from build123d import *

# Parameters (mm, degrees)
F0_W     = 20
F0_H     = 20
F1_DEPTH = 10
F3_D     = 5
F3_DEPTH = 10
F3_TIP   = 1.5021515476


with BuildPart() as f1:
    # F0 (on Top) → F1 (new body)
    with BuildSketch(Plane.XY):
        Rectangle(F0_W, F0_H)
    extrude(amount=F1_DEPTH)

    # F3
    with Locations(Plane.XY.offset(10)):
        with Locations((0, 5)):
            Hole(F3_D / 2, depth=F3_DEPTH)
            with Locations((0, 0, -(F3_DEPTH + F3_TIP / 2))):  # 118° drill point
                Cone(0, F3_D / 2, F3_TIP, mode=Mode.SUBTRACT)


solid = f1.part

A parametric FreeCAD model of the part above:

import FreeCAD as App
import Part
import Sketcher
Q = App.Units.Quantity


def add_polygon(sketch, points):
    """Adds a closed chain of lines whose ends are joined by coincident constraints."""
    first, n = sketch.GeometryCount, len(points)
    for a, b in zip(points, points[1:] + points[:1]):
        sketch.addGeometry(Part.LineSegment(App.Vector(*a, 0), App.Vector(*b, 0)), False)
    for i in range(n):
        sketch.addConstraint(Sketcher.Constraint("Coincident", first + i, 2, first + (i + 1) % n, 1))

doc = App.newDocument("Part")
params = doc.addObject("Spreadsheet::Sheet", "Params")
for row, (alias, value) in enumerate([
    ("sketch1_width", "20 mm"),
    ("pad1_length", "10 mm"),
    ("sketch2_diameter", "5 mm"),
    ("hole_diameter", "5 mm"),
    ("hole_depth", "10 mm"),
], start=1):
    params.set(f"A{row}", alias)
    params.set(f"B{row}", "=" + value)
    params.setAlias(f"B{row}", alias)

body = doc.addObject("PartDesign::Body", "Body")

# Sketch on XY plane
sketch1 = body.newObject("Sketcher::SketchObject", "Sketch")
sketch1.AttachmentSupport = (doc.getObject("XY_Plane"), [""])
sketch1.MapMode = "FlatFace"
add_polygon(sketch1, [(-10, 10), (-10, -10), (10, -10), (10, 10)])  # lines 0-3
sketch1.addConstraint([
    Sketcher.Constraint("Vertical", 0),
    Sketcher.Constraint("Horizontal", 1),
    Sketcher.Constraint("Vertical", 2),
    Sketcher.Constraint("Horizontal", 3),
    Sketcher.Constraint("Symmetric", 0, 2, 2, 2, -1, 1),
    Sketcher.Constraint("Equal", 3, 0),
    Sketcher.Constraint("DistanceX", 1, 1, 1, 2, Q("20 mm")),
])
sketch1.setExpression("Constraints[10]", "Params.sketch1_width")
pad1 = body.newObject("PartDesign::Pad", "Pad")
pad1.Profile = sketch1
pad1.setExpression("Length", "Params.pad1_length")

# Sketch on XY plane
sketch2 = body.newObject("Sketcher::SketchObject", "Sketch001")
sketch2.AttachmentSupport = (doc.getObject("XY_Plane"), [""])
sketch2.MapMode = "FlatFace"
sketch2.AttachmentOffset = App.Placement(App.Vector(0, 0, 10), App.Rotation())
sketch2.addGeometry(Part.Circle(App.Vector(0, 5, 0), App.Vector(0, 0, 1), 2.5), False)
sketch2.addConstraint([
    Sketcher.Constraint("PointOnObject", 0, 3, -2),
    Sketcher.Constraint("Diameter", 0, Q("5 mm")),
    Sketcher.Constraint("DistanceY", -1, 1, 0, 3, Q("5 mm")),
])
sketch2.setExpression("Constraints[1]", "Params.sketch2_diameter")
doc.recompute()
hole = body.newObject("PartDesign::Hole", "Hole")
hole.Profile = sketch2
hole.ThreadType = "None"
hole.setExpression("Diameter", "Params.hole_diameter")
hole.DepthType = "Dimension"
hole.setExpression("Depth", "Params.hole_depth")
hole.DrillPoint = "Angled"
hole.DrillPointAngle = 118

doc.recompute()
